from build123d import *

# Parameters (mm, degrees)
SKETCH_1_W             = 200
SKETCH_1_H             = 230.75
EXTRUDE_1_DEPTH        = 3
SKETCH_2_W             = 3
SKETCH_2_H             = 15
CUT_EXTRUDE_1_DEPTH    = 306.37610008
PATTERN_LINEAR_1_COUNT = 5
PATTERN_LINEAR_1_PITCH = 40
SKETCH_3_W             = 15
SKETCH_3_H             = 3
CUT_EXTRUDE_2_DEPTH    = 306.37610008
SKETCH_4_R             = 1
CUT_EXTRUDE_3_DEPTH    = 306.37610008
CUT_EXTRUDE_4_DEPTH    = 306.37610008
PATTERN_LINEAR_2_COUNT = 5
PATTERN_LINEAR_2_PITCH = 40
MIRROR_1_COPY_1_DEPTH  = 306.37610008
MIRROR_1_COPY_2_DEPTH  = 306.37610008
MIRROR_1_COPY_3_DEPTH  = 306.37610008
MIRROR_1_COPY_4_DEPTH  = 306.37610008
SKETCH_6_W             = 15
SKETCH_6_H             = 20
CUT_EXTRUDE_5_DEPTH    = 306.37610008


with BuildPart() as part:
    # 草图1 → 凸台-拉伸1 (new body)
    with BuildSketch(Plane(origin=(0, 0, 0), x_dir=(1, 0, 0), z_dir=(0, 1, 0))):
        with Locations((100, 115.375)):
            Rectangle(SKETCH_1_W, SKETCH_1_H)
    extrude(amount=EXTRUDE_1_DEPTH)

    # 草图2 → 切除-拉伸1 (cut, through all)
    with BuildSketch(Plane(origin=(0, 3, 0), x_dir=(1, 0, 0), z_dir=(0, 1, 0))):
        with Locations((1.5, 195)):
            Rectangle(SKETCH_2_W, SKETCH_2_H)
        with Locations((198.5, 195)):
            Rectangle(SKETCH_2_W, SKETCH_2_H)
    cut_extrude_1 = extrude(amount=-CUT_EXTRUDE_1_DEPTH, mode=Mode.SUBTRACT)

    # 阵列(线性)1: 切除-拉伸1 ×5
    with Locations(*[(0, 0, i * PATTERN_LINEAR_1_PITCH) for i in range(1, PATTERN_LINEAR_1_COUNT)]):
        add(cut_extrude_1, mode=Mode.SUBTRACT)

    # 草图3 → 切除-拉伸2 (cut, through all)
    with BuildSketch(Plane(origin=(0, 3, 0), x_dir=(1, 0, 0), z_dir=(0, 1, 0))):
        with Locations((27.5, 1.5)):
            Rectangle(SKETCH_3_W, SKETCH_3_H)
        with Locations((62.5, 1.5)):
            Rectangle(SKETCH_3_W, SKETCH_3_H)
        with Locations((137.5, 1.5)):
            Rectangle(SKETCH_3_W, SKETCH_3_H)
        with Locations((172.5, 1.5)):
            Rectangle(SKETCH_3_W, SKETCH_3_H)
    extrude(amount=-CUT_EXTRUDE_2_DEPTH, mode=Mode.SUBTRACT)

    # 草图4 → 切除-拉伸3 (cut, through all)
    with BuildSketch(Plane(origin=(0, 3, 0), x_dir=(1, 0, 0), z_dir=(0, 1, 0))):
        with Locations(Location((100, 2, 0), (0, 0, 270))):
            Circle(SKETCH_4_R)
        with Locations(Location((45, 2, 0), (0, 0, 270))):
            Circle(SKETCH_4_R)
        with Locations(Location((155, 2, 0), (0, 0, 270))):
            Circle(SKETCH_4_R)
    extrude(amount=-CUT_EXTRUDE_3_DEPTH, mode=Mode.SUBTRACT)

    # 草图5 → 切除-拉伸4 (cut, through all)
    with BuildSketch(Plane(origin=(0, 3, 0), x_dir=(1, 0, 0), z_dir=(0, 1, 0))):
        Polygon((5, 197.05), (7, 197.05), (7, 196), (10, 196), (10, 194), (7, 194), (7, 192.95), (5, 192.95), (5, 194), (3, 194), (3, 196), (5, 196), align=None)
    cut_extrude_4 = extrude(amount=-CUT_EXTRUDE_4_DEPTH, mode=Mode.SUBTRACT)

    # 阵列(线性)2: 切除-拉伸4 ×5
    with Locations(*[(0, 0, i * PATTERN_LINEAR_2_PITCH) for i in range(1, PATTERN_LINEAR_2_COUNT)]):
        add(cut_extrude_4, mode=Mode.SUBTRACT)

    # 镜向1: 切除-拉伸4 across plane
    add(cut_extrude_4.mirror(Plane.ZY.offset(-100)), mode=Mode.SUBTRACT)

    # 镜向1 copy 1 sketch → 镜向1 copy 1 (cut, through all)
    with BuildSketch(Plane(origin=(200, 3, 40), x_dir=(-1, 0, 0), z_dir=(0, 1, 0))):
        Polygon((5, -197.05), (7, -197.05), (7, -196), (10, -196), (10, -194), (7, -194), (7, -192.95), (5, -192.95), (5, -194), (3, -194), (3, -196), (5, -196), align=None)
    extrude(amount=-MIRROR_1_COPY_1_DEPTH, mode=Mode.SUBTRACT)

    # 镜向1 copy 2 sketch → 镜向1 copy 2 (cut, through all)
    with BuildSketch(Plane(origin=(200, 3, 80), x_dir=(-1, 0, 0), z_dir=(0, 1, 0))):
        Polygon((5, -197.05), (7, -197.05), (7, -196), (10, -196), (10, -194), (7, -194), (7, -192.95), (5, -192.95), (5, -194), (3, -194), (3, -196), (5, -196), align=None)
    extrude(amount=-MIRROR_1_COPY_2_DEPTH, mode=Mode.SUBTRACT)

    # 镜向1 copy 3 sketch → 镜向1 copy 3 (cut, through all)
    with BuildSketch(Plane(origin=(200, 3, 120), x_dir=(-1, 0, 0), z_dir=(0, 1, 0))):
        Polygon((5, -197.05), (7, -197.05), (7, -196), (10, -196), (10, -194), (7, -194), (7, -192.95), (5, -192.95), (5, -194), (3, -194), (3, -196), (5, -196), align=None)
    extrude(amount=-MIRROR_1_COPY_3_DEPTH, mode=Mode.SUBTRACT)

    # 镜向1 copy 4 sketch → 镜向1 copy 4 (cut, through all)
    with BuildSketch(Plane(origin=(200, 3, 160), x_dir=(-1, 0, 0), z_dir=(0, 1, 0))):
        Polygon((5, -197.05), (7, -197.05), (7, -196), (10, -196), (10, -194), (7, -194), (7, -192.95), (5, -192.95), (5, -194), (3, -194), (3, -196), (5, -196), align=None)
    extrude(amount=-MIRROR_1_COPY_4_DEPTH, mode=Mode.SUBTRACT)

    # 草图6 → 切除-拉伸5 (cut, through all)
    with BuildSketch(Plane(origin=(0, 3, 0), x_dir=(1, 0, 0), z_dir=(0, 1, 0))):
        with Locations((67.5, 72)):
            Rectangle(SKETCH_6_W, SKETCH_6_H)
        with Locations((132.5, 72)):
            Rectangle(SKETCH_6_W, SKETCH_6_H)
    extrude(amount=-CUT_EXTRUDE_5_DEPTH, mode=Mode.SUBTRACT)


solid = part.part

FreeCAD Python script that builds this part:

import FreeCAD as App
import Part
import Sketcher
Q = App.Units.Quantity

doc = App.newDocument("Part")
params = doc.addObject("Spreadsheet::Sheet", "Params")
for row, (alias, value) in enumerate([
    ("sketch1_width", "200 mm"),
    ("sketch1_height", "230.75 mm"),
    ("pad1_length", "3 mm"),
    ("sketch2_width", "3 mm"),
    ("sketch2_height", "15 mm"),
    ("linearpattern_pitch", "40 mm"),
    ("sketch3_width", "15 mm"),
    ("sketch3_height", "3 mm"),
    ("sketch4_diameter", "2 mm"),
    ("sketch5_width", "2 mm"),
    ("sketch5_width2", "3 mm"),
    ("sketch5_height", "1.05 mm"),
    ("linearpattern2_pitch", "40 mm"),
    ("sketch6_width", "2 mm"),
    ("sketch6_width2", "3 mm"),
    ("sketch6_height", "1.05 mm"),
    ("sketch7_width", "2 mm"),
    ("sketch7_width2", "3 mm"),
    ("sketch7_height", "1.05 mm"),
    ("sketch8_width", "2 mm"),
    ("sketch8_width2", "3 mm"),
    ("sketch8_height", "1.05 mm"),
    ("sketch9_width", "2 mm"),
    ("sketch9_width2", "3 mm"),
    ("sketch9_height", "1.05 mm"),
    ("sketch10_width", "15 mm"),
    ("sketch10_height", "20 mm"),
], start=1):
    params.set(f"A{row}", alias)
    params.set(f"B{row}", "=" + value)
    params.setAlias(f"B{row}", alias)

body = doc.addObject("PartDesign::Body", "Body")

sketch1 = body.newObject("Sketcher::SketchObject", "Sketch")
sketch1.AttachmentSupport = (doc.getObject("XZ_Plane"), [""])
sketch1.MapMode = "FlatFace"
sketch1.addGeometry([
    Part.LineSegment(App.Vector(0, -231, 0), App.Vector(0, 0, 0)),
    Part.LineSegment(App.Vector(0, 0, 0), App.Vector(200, 0, 0)),
    Part.LineSegment(App.Vector(200, 0, 0), App.Vector(200, -231, 0)),
    Part.LineSegment(App.Vector(200, -231, 0), App.Vector(0, -231, 0)),
], False)
sketch1.addConstraint([
    Sketcher.Constraint("Coincident", 0, 2, 1, 1),
    Sketcher.Constraint("Coincident", 1, 2, 2, 1),
    Sketcher.Constraint("Coincident", 2, 2, 3, 1),
    Sketcher.Constraint("Coincident", 3, 2, 0, 1),
    Sketcher.Constraint("Vertical", 0),
    Sketcher.Constraint("Horizontal", 1),
    Sketcher.Constraint("Vertical", 2),
    Sketcher.Constraint("Horizontal", 3),
    Sketcher.Constraint("Coincident", 0, 2, -1, 1),
    Sketcher.Constraint("DistanceX", 1, 1, 1, 2, Q("200 mm")),
    Sketcher.Constraint("DistanceY", 0, 1, 0, 2, Q("230.75 mm")),
])
sketch1.setExpression("Constraints[9]", "Params.sketch1_width")
sketch1.setExpression("Constraints[10]", "Params.sketch1_height")
pad1 = body.newObject("PartDesign::Pad", "Pad")
pad1.Profile = sketch1
pad1.setExpression("Length", "Params.pad1_length")
pad1.Reversed = True

sketch2 = body.newObject("Sketcher::SketchObject", "Sketch001")
sketch2.AttachmentSupport = (doc.getObject("XZ_Plane"), [""])
sketch2.MapMode = "FlatFace"
sketch2.AttachmentOffset = App.Placement(App.Vector(0, 0, -3), App.Rotation())
sketch2.addGeometry([
    Part.LineSegment(App.Vector(0, -202.5, 0), App.Vector(0, -187.5, 0)),
    Part.LineSegment(App.Vector(0, -187.5, 0), App.Vector(3, -187.5, 0)),
    Part.LineSegment(App.Vector(3, -187.5, 0), App.Vector(3, -202.5, 0)),
    Part.LineSegment(App.Vector(3, -202.5, 0), App.Vector(0, -202.5, 0)),
    Part.LineSegment(App.Vector(197, -202.5, 0), App.Vector(197, -187.5, 0)),
    Part.LineSegment(App.Vector(197, -187.5, 0), App.Vector(200, -187.5, 0)),
    Part.LineSegment(App.Vector(200, -187.5, 0), App.Vector(200, -202.5, 0)),
    Part.LineSegment(App.Vector(200, -202.5, 0), App.Vector(197, -202.5, 0)),
], False)
sketch2.addConstraint([
    Sketcher.Constraint("Coincident", 0, 2, 1, 1),
    Sketcher.Constraint("Coincident", 1, 2, 2, 1),
    Sketcher.Constraint("Coincident", 2, 2, 3, 1),
    Sketcher.Constraint("Coincident", 3, 2, 0, 1),
    Sketcher.Constraint("Coincident", 4, 2, 5, 1),
    Sketcher.Constraint("Coincident", 5, 2, 6, 1),
    Sketcher.Constraint("Coincident", 6, 2, 7, 1),
    Sketcher.Constraint("Coincident", 7, 2, 4, 1),
    Sketcher.Constraint("Vertical", 0),
    Sketcher.Constraint("Horizontal", 1),
    Sketcher.Constraint("Vertical", 2),
    Sketcher.Constraint("Horizontal", 3),
    Sketcher.Constraint("Vertical", 4),
    Sketcher.Constraint("Horizontal", 5),
    Sketcher.Constraint("Vertical", 6),
    Sketcher.Constraint("Horizontal", 7),
    Sketcher.Constraint("PointOnObject", 0, 2, -2),
    Sketcher.Constraint("Horizontal", 1, 2, 4, 2),
    Sketcher.Constraint("Horizontal", 3, 2, 6, 2),
    Sketcher.Constraint("Equal", 3, 5),
    Sketcher.Constraint("DistanceX", 1, 1, 1, 2, Q("3 mm")),
    Sketcher.Constraint("DistanceY", 0, 1, 0, 2, Q("15 mm")),
    Sketcher.Constraint("DistanceX", -1, 1, 4, 2, Q("197 mm")),
    Sketcher.Constraint("DistanceY", 0, 2, -1, 1, Q("187.5 mm")),
])
sketch2.setExpression("Constraints[20]", "Params.sketch2_width")
sketch2.setExpression("Constraints[21]", "Params.sketch2_height")
pocket1 = body.newObject("PartDesign::Pocket", "Pocket")
pocket1.Profile = sketch2
pocket1.Type = "ThroughAll"
pocket1.Reversed = True
doc.recompute()

linearpattern = body.newObject("PartDesign::LinearPattern", "LinearPattern")
linearpattern.Originals = [pocket1]
linearpattern.Direction = (doc.getObject("Z_Axis"), [""])
linearpattern.Mode = "offset"
linearpattern.setExpression("Offset", "Params.linearpattern_pitch")
linearpattern.Occurrences = 5
body.Tip = linearpattern

sketch3 = body.newObject("Sketcher::SketchObject", "Sketch002")
sketch3.AttachmentSupport = (doc.getObject("XZ_Plane"), [""])
sketch3.MapMode = "FlatFace"
sketch3.AttachmentOffset = App.Placement(App.Vector(0, 0, -3), App.Rotation())
sketch3.addGeometry([
    Part.LineSegment(App.Vector(20, -3, 0), App.Vector(20, 0, 0)),
    Part.LineSegment(App.Vector(20, 0, 0), App.Vector(35, 0, 0)),
    Part.LineSegment(App.Vector(35, 0, 0), App.Vector(35, -3, 0)),
    Part.LineSegment(App.Vector(35, -3, 0), App.Vector(20, -3, 0)),
    Part.LineSegment(App.Vector(55, -3, 0), App.Vector(55, 0, 0)),
    Part.LineSegment(App.Vector(55, 0, 0), App.Vector(70, 0, 0)),
    Part.LineSegment(App.Vector(70, 0, 0), App.Vector(70, -3, 0)),
    Part.LineSegment(App.Vector(70, -3, 0), App.Vector(55, -3, 0)),
    Part.LineSegment(App.Vector(130, -3, 0), App.Vector(130, 0, 0)),
    Part.LineSegment(App.Vector(130, 0, 0), App.Vector(145, 0, 0)),
    Part.LineSegment(App.Vector(145, 0, 0), App.Vector(145, -3, 0)),
    Part.LineSegment(App.Vector(145, -3, 0), App.Vector(130, -3, 0)),
    Part.LineSegment(App.Vector(165, -3, 0), App.Vector(165, 0, 0)),
    Part.LineSegment(App.Vector(165, 0, 0), App.Vector(180, 0, 0)),
    Part.LineSegment(App.Vector(180, 0, 0), App.Vector(180, -3, 0)),
    Part.LineSegment(App.Vector(180, -3, 0), App.Vector(165, -3, 0)),
], False)
sketch3.addConstraint([
    Sketcher.Constraint("Coincident", 0, 2, 1, 1),
    Sketcher.Constraint("Coincident", 1, 2, 2, 1),
    Sketcher.Constraint("Coincident", 2, 2, 3, 1),
    Sketcher.Constraint("Coincident", 3, 2, 0, 1),
    Sketcher.Constraint("Coincident", 4, 2, 5, 1),
    Sketcher.Constraint("Coincident", 5, 2, 6, 1),
    Sketcher.Constraint("Coincident", 6, 2, 7, 1),
    Sketcher.Constraint("Coincident", 7, 2, 4, 1),
    Sketcher.Constraint("Coincident", 8, 2, 9, 1),
    Sketcher.Constraint("Coincident", 9, 2, 10, 1),
    Sketcher.Constraint("Coincident", 10, 2, 11, 1),
    Sketcher.Constraint("Coincident", 11, 2, 8, 1),
    Sketcher.Constraint("Coincident", 12, 2, 13, 1),
    Sketcher.Constraint("Coincident", 13, 2, 14, 1),
    Sketcher.Constraint("Coincident", 14, 2, 15, 1),
    Sketcher.Constraint("Coincident", 15, 2, 12, 1),
    Sketcher.Constraint("Vertical", 0),
    Sketcher.Constraint("Horizontal", 1),
    Sketcher.Constraint("Vertical", 2),
    Sketcher.Constraint("Horizontal", 3),
    Sketcher.Constraint("Vertical", 4),
    Sketcher.Constraint("Horizontal", 5),
    Sketcher.Constraint("Vertical", 6),
    Sketcher.Constraint("Horizontal", 7),
    Sketcher.Constraint("Vertical", 8),
    Sketcher.Constraint("Horizontal", 9),
    Sketcher.Constraint("Vertical", 10),
    Sketcher.Constraint("Horizontal", 11),
    Sketcher.Constraint("Vertical", 12),
    Sketcher.Constraint("Horizontal", 13),
    Sketcher.Constraint("Vertical", 14),
    Sketcher.Constraint("Horizontal", 15),
    Sketcher.Constraint("PointOnObject", 0, 2, -1),
    Sketcher.Constraint("PointOnObject", 4, 2, -1),
    Sketcher.Constraint("PointOnObject", 8, 2, -1),
    Sketcher.Constraint("PointOnObject", 12, 2, -1),
    Sketcher.Constraint("Horizontal", 3, 2, 6, 2),
    Sketcher.Constraint("Horizontal", 7, 2, 10, 2),
    Sketcher.Constraint("Horizontal", 11, 2, 14, 2),
    Sketcher.Constraint("Equal", 3, 5),
    Sketcher.Constraint("Equal", 7, 9),
    Sketcher.Constraint("Equal", 11, 13),
    Sketcher.Constraint("DistanceX", 1, 1, 1, 2, Q("15 mm")),
    Sketcher.Constraint("DistanceY", 0, 1, 0, 2, Q("3 mm")),
    Sketcher.Constraint("DistanceX", -1, 1, 0, 2, Q("20 mm")),
    Sketcher.Constraint("DistanceX", -1, 1, 4, 2, Q("55 mm")),
    Sketcher.Constraint("DistanceX", -1, 1, 8, 2, Q("130 mm")),
    Sketcher.Constraint("DistanceX", -1, 1, 12, 2, Q("165 mm")),
])
sketch3.setExpression("Constraints[42]", "Params.sketch3_width")
sketch3.setExpression("Constraints[43]", "Params.sketch3_height")
pocket2 = body.newObject("PartDesign::Pocket", "Pocket001")
pocket2.Profile = sketch3
pocket2.Type = "ThroughAll"
pocket2.Reversed = True

sketch4 = body.newObject("Sketcher::SketchObject", "Sketch003")
sketch4.AttachmentSupport = (doc.getObject("XZ_Plane"), [""])
sketch4.MapMode = "FlatFace"
sketch4.AttachmentOffset = App.Placement(App.Vector(0, 0, -3), App.Rotation())
sketch4.addGeometry([
    Part.Circle(App.Vector(100, -2, 0), App.Vector(0, 0, 1), 1),
    Part.Circle(App.Vector(45, -2, 0), App.Vector(0, 0, 1), 1),
    Part.Circle(App.Vector(155, -2, 0), App.Vector(0, 0, 1), 1),
], False)
sketch4.addConstraint([
    Sketcher.Constraint("Equal", 0, 1),
    Sketcher.Constraint("Equal", 1, 2),
    Sketcher.Constraint("Horizontal", 0, 3, 1, 3),
    Sketcher.Constraint("Horizontal", 1, 3, 2, 3),
    Sketcher.Constraint("Diameter", 0, Q("2 mm")),
    Sketcher.Constraint("DistanceX", -1, 1, 0, 3, Q("100 mm")),
    Sketcher.Constraint("DistanceY", 0, 3, -1, 1, Q("2 mm")),
    Sketcher.Constraint("DistanceX", -1, 1, 1, 3, Q("45 mm")),
    Sketcher.Constraint("DistanceX", -1, 1, 2, 3, Q("155 mm")),
])
sketch4.setExpression("Constraints[4]", "Params.sketch4_diameter")
pocket3 = body.newObject("PartDesign::Pocket", "Pocket002")
pocket3.Profile = sketch4
pocket3.Type = "ThroughAll"
pocket3.Reversed = True

sketch5 = body.newObject("Sketcher::SketchObject", "Sketch004")
sketch5.AttachmentSupport = (doc.getObject("XZ_Plane"), [""])
sketch5.MapMode = "FlatFace"
sketch5.AttachmentOffset = App.Placement(App.Vector(0, 0, -3), App.Rotation())
sketch5.addGeometry([
    Part.LineSegment(App.Vector(7, -197.1, 0), App.Vector(5, -197.1, 0)),
    Part.LineSegment(App.Vector(5, -197.1, 0), App.Vector(5, -196, 0)),
    Part.LineSegment(App.Vector(5, -196, 0), App.Vector(3, -196, 0)),
    Part.LineSegment(App.Vector(3, -196, 0), App.Vector(3, -194, 0)),
    Part.LineSegment(App.Vector(3, -194, 0), App.Vector(5, -194, 0)),
    Part.LineSegment(App.Vector(5, -194, 0), App.Vector(5, -192.9, 0)),
    Part.LineSegment(App.Vector(5, -192.9, 0), App.Vector(7, -192.9, 0)),
    Part.LineSegment(App.Vector(7, -192.9, 0), App.Vector(7, -194, 0)),
    Part.LineSegment(App.Vector(7, -194, 0), App.Vector(10, -194, 0)),
    Part.LineSegment(App.Vector(10, -194, 0), App.Vector(10, -196, 0)),
    Part.LineSegment(App.Vector(10, -196, 0), App.Vector(7, -196, 0)),
    Part.LineSegment(App.Vector(7, -196, 0), App.Vector(7, -197.1, 0)),
], False)
sketch5.addConstraint([
    Sketcher.Constraint("Coincident", 0, 2, 1, 1),
    Sketcher.Constraint("Coincident", 1, 2, 2, 1),
    Sketcher.Constraint("Coincident", 2, 2, 3, 1),
    Sketcher.Constraint("Coincident", 3, 2, 4, 1),
    Sketcher.Constraint("Coincident", 4, 2, 5, 1),
    Sketcher.Constraint("Coincident", 5, 2, 6, 1),
    Sketcher.Constraint("Coincident", 6, 2, 7, 1),
    Sketcher.Constraint("Coincident", 7, 2, 8, 1),
    Sketcher.Constraint("Coincident", 8, 2, 9, 1),
    Sketcher.Constraint("Coincident", 9, 2, 10, 1),
    Sketcher.Constraint("Coincident", 10, 2, 11, 1),
    Sketcher.Constraint("Coincident", 11, 2, 0, 1),
    Sketcher.Constraint("Horizontal", 0),
    Sketcher.Constraint("Vertical", 1),
    Sketcher.Constraint("Horizontal", 2),
    Sketcher.Constraint("Vertical", 3),
    Sketcher.Constraint("Horizontal", 4),
    Sketcher.Constraint("Vertical", 5),
    Sketcher.Constraint("Horizontal", 6),
    Sketcher.Constraint("Vertical", 7),
    Sketcher.Constraint("Horizontal", 8),
    Sketcher.Constraint("Vertical", 9),
    Sketcher.Constraint("Horizontal", 10),
    Sketcher.Constraint("Vertical", 11),
    Sketcher.Constraint("Horizontal", 4, 2, 7, 2),
    Sketcher.Constraint("Horizontal", 2, 2, 9, 2),
    Sketcher.Constraint("Vertical", 1, 2, 4, 2),
    Sketcher.Constraint("Vertical", 7, 2, 10, 2),
    Sketcher.Constraint("Equal", 0, 2),
    Sketcher.Constraint("Equal", 6, 3),
    Sketcher.Constraint("Equal", 1, 5),
    Sketcher.Constraint("DistanceX", 0, 2, 0, 1, Q("2 mm")),
    Sketcher.Constraint("DistanceX", 8, 1, 8, 2, Q("3 mm")),
    Sketcher.Constraint("DistanceX", -1, 1, 0, 2, Q("5 mm")),
    Sketcher.Constraint("DistanceY", 1, 2, -1, 1, Q("196 mm")),
    Sketcher.Constraint("DistanceY", 1, 1, 1, 2, Q("1.05 mm")),
])
sketch5.setExpression("Constraints[31]", "Params.sketch5_width")
sketch5.setExpression("Constraints[32]", "Params.sketch5_width2")
sketch5.setExpression("Constraints[35]", "Params.sketch5_height")
pocket4 = body.newObject("PartDesign::Pocket", "Pocket003")
pocket4.Profile = sketch5
pocket4.Type = "ThroughAll"
pocket4.Reversed = True
doc.recompute()

linearpattern2 = body.newObject("PartDesign::LinearPattern", "LinearPattern001")
linearpattern2.Originals = [pocket4]
linearpattern2.Direction = (doc.getObject("Z_Axis"), [""])
linearpattern2.Mode = "offset"
linearpattern2.setExpression("Offset", "Params.linearpattern2_pitch")
linearpattern2.Occurrences = 5
body.Tip = linearpattern2
doc.recompute()

datumplane = body.newObject("PartDesign::Plane", "DatumPlane")
datumplane.AttachmentSupport = (doc.getObject("YZ_Plane"), [""])
datumplane.MapMode = "FlatFace"
datumplane.AttachmentOffset = App.Placement(App.Vector(0, 0, 100), App.Rotation())
mirrored = body.newObject("PartDesign::Mirrored", "Mirrored")
mirrored.Originals = [pocket4]
mirrored.MirrorPlane = (datumplane, [""])
body.Tip = mirrored

sketch6 = body.newObject("Sketcher::SketchObject", "Sketch005")
sketch6.AttachmentSupport = (doc.getObject("XZ_Plane"), [""])
sketch6.MapMode = "FlatFace"
sketch6.AttachmentOffset = App.Placement(App.Vector(0, 0, -3), App.Rotation())
sketch6.addGeometry([
    Part.LineSegment(App.Vector(195, -157.1, 0), App.Vector(193, -157.1, 0)),
    Part.LineSegment(App.Vector(193, -157.1, 0), App.Vector(193, -156, 0)),
    Part.LineSegment(App.Vector(193, -156, 0), App.Vector(190, -156, 0)),
    Part.LineSegment(App.Vector(190, -156, 0), App.Vector(190, -154, 0)),
    Part.LineSegment(App.Vector(190, -154, 0), App.Vector(193, -154, 0)),
    Part.LineSegment(App.Vector(193, -154, 0), App.Vector(193, -152.9, 0)),
    Part.LineSegment(App.Vector(193, -152.9, 0), App.Vector(195, -152.9, 0)),
    Part.LineSegment(App.Vector(195, -152.9, 0), App.Vector(195, -154, 0)),
    Part.LineSegment(App.Vector(195, -154, 0), App.Vector(197, -154, 0)),
    Part.LineSegment(App.Vector(197, -154, 0), App.Vector(197, -156, 0)),
    Part.LineSegment(App.Vector(197, -156, 0), App.Vector(195, -156, 0)),
    Part.LineSegment(App.Vector(195, -156, 0), App.Vector(195, -157.1, 0)),
], False)
sketch6.addConstraint([
    Sketcher.Constraint("Coincident", 0, 2, 1, 1),
    Sketcher.Constraint("Coincident", 1, 2, 2, 1),
    Sketcher.Constraint("Coincident", 2, 2, 3, 1),
    Sketcher.Constraint("Coincident", 3, 2, 4, 1),
    Sketcher.Constraint("Coincident", 4, 2, 5, 1),
    Sketcher.Constraint("Coincident", 5, 2, 6, 1),
    Sketcher.Constraint("Coincident", 6, 2, 7, 1),
    Sketcher.Constraint("Coincident", 7, 2, 8, 1),
    Sketcher.Constraint("Coincident", 8, 2, 9, 1),
    Sketcher.Constraint("Coincident", 9, 2, 10, 1),
    Sketcher.Constraint("Coincident", 10, 2, 11, 1),
    Sketcher.Constraint("Coincident", 11, 2, 0, 1),
    Sketcher.Constraint("Horizontal", 0),
    Sketcher.Constraint("Vertical", 1),
    Sketcher.Constraint("Horizontal", 2),
    Sketcher.Constraint("Vertical", 3),
    Sketcher.Constraint("Horizontal", 4),
    Sketcher.Constraint("Vertical", 5),
    Sketcher.Constraint("Horizontal", 6),
    Sketcher.Constraint("Vertical", 7),
    Sketcher.Constraint("Horizontal", 8),
    Sketcher.Constraint("Vertical", 9),
    Sketcher.Constraint("Horizontal", 10),
    Sketcher.Constraint("Vertical", 11),
    Sketcher.Constraint("Horizontal", 4, 2, 7, 2),
    Sketcher.Constraint("Horizontal", 2, 2, 9, 2),
    Sketcher.Constraint("Vertical", 1, 2, 4, 2),
    Sketcher.Constraint("Vertical", 7, 2, 10, 2),
    Sketcher.Constraint("Equal", 6, 8),
    Sketcher.Constraint("Equal", 10, 3),
    Sketcher.Constraint("Equal", 1, 5),
    Sketcher.Constraint("DistanceX", 0, 2, 0, 1, Q("2 mm")),
    Sketcher.Constraint("DistanceX", 2, 2, 2, 1, Q("3 mm")),
    Sketcher.Constraint("DistanceX", -1, 1, 0, 2, Q("193 mm")),
    Sketcher.Constraint("DistanceY", 1, 2, -1, 1, Q("156 mm")),
    Sketcher.Constraint("DistanceY", 1, 1, 1, 2, Q("1.05 mm")),
])
sketch6.setExpression("Constraints[31]", "Params.sketch6_width")
sketch6.setExpression("Constraints[32]", "Params.sketch6_width2")
sketch6.setExpression("Constraints[35]", "Params.sketch6_height")
pocket5 = body.newObject("PartDesign::Pocket", "Pocket004")
pocket5.Profile = sketch6
pocket5.Type = "ThroughAll"
pocket5.Reversed = True

sketch7 = body.newObject("Sketcher::SketchObject", "Sketch006")
sketch7.AttachmentSupport = (doc.getObject("XZ_Plane"), [""])
sketch7.MapMode = "FlatFace"
sketch7.AttachmentOffset = App.Placement(App.Vector(0, 0, -3), App.Rotation())
sketch7.addGeometry([
    Part.LineSegment(App.Vector(195, -117, 0), App.Vector(193, -117, 0)),
    Part.LineSegment(App.Vector(193, -117, 0), App.Vector(193, -116, 0)),
    Part.LineSegment(App.Vector(193, -116, 0), App.Vector(190, -116, 0)),
    Part.LineSegment(App.Vector(190, -116, 0), App.Vector(190, -114, 0)),
    Part.LineSegment(App.Vector(190, -114, 0), App.Vector(193, -114, 0)),
    Part.LineSegment(App.Vector(193, -114, 0), App.Vector(193, -113, 0)),
    Part.LineSegment(App.Vector(193, -113, 0), App.Vector(195, -113, 0)),
    Part.LineSegment(App.Vector(195, -113, 0), App.Vector(195, -114, 0)),
    Part.LineSegment(App.Vector(195, -114, 0), App.Vector(197, -114, 0)),
    Part.LineSegment(App.Vector(197, -114, 0), App.Vector(197, -116, 0)),
    Part.LineSegment(App.Vector(197, -116, 0), App.Vector(195, -116, 0)),
    Part.LineSegment(App.Vector(195, -116, 0), App.Vector(195, -117, 0)),
], False)
sketch7.addConstraint([
    Sketcher.Constraint("Coincident", 0, 2, 1, 1),
    Sketcher.Constraint("Coincident", 1, 2, 2, 1),
    Sketcher.Constraint("Coincident", 2, 2, 3, 1),
    Sketcher.Constraint("Coincident", 3, 2, 4, 1),
    Sketcher.Constraint("Coincident", 4, 2, 5, 1),
    Sketcher.Constraint("Coincident", 5, 2, 6, 1),
    Sketcher.Constraint("Coincident", 6, 2, 7, 1),
    Sketcher.Constraint("Coincident", 7, 2, 8, 1),
    Sketcher.Constraint("Coincident", 8, 2, 9, 1),
    Sketcher.Constraint("Coincident", 9, 2, 10, 1),
    Sketcher.Constraint("Coincident", 10, 2, 11, 1),
    Sketcher.Constraint("Coincident", 11, 2, 0, 1),
    Sketcher.Constraint("Horizontal", 0),
    Sketcher.Constraint("Vertical", 1),
    Sketcher.Constraint("Horizontal", 2),
    Sketcher.Constraint("Vertical", 3),
    Sketcher.Constraint("Horizontal", 4),
    Sketcher.Constraint("Vertical", 5),
    Sketcher.Constraint("Horizontal", 6),
    Sketcher.Constraint("Vertical", 7),
    Sketcher.Constraint("Horizontal", 8),
    Sketcher.Constraint("Vertical", 9),
    Sketcher.Constraint("Horizontal", 10),
    Sketcher.Constraint("Vertical", 11),
    Sketcher.Constraint("Horizontal", 4, 2, 7, 2),
    Sketcher.Constraint("Horizontal", 2, 2, 9, 2),
    Sketcher.Constraint("Vertical", 1, 2, 4, 2),
    Sketcher.Constraint("Vertical", 7, 2, 10, 2),
    Sketcher.Constraint("Equal", 6, 8),
    Sketcher.Constraint("Equal", 10, 3),
    Sketcher.Constraint("Equal", 1, 5),
    Sketcher.Constraint("DistanceX", 0, 2, 0, 1, Q("2 mm")),
    Sketcher.Constraint("DistanceX", 2, 2, 2, 1, Q("3 mm")),
    Sketcher.Constraint("DistanceX", -1, 1, 0, 2, Q("193 mm")),
    Sketcher.Constraint("DistanceY", 1, 2, -1, 1, Q("116 mm")),
    Sketcher.Constraint("DistanceY", 1, 1, 1, 2, Q("1.05 mm")),
])
sketch7.setExpression("Constraints[31]", "Params.sketch7_width")
sketch7.setExpression("Constraints[32]", "Params.sketch7_width2")
sketch7.setExpression("Constraints[35]", "Params.sketch7_height")
pocket6 = body.newObject("PartDesign::Pocket", "Pocket005")
pocket6.Profile = sketch7
pocket6.Type = "ThroughAll"
pocket6.Reversed = True

sketch8 = body.newObject("Sketcher::SketchObject", "Sketch007")
sketch8.AttachmentSupport = (doc.getObject("XZ_Plane"), [""])
sketch8.MapMode = "FlatFace"
sketch8.AttachmentOffset = App.Placement(App.Vector(0, 0, -3), App.Rotation())
sketch8.addGeometry([
    Part.LineSegment(App.Vector(195, -77, 0), App.Vector(193, -77, 0)),
    Part.LineSegment(App.Vector(193, -77, 0), App.Vector(193, -76, 0)),
    Part.LineSegment(App.Vector(193, -76, 0), App.Vector(190, -76, 0)),
    Part.LineSegment(App.Vector(190, -76, 0), App.Vector(190, -74, 0)),
    Part.LineSegment(App.Vector(190, -74, 0), App.Vector(193, -74, 0)),
    Part.LineSegment(App.Vector(193, -74, 0), App.Vector(193, -73, 0)),
    Part.LineSegment(App.Vector(193, -73, 0), App.Vector(195, -73, 0)),
    Part.LineSegment(App.Vector(195, -73, 0), App.Vector(195, -74, 0)),
    Part.LineSegment(App.Vector(195, -74, 0), App.Vector(197, -74, 0)),
    Part.LineSegment(App.Vector(197, -74, 0), App.Vector(197, -76, 0)),
    Part.LineSegment(App.Vector(197, -76, 0), App.Vector(195, -76, 0)),
    Part.LineSegment(App.Vector(195, -76, 0), App.Vector(195, -77, 0)),
], False)
sketch8.addConstraint([
    Sketcher.Constraint("Coincident", 0, 2, 1, 1),
    Sketcher.Constraint("Coincident", 1, 2, 2, 1),
    Sketcher.Constraint("Coincident", 2, 2, 3, 1),
    Sketcher.Constraint("Coincident", 3, 2, 4, 1),
    Sketcher.Constraint("Coincident", 4, 2, 5, 1),
    Sketcher.Constraint("Coincident", 5, 2, 6, 1),
    Sketcher.Constraint("Coincident", 6, 2, 7, 1),
    Sketcher.Constraint("Coincident", 7, 2, 8, 1),
    Sketcher.Constraint("Coincident", 8, 2, 9, 1),
    Sketcher.Constraint("Coincident", 9, 2, 10, 1),
    Sketcher.Constraint("Coincident", 10, 2, 11, 1),
    Sketcher.Constraint("Coincident", 11, 2, 0, 1),
    Sketcher.Constraint("Horizontal", 0),
    Sketcher.Constraint("Vertical", 1),
    Sketcher.Constraint("Horizontal", 2),
    Sketcher.Constraint("Vertical", 3),
    Sketcher.Constraint("Horizontal", 4),
    Sketcher.Constraint("Vertical", 5),
    Sketcher.Constraint("Horizontal", 6),
    Sketcher.Constraint("Vertical", 7),
    Sketcher.Constraint("Horizontal", 8),
    Sketcher.Constraint("Vertical", 9),
    Sketcher.Constraint("Horizontal", 10),
    Sketcher.Constraint("Vertical", 11),
    Sketcher.Constraint("Horizontal", 4, 2, 7, 2),
    Sketcher.Constraint("Horizontal", 2, 2, 9, 2),
    Sketcher.Constraint("Vertical", 1, 2, 4, 2),
    Sketcher.Constraint("Vertical", 7, 2, 10, 2),
    Sketcher.Constraint("Equal", 6, 8),
    Sketcher.Constraint("Equal", 10, 3),
    Sketcher.Constraint("Equal", 1, 5),
    Sketcher.Constraint("DistanceX", 0, 2, 0, 1, Q("2 mm")),
    Sketcher.Constraint("DistanceX", 2, 2, 2, 1, Q("3 mm")),
    Sketcher.Constraint("DistanceX", -1, 1, 0, 2, Q("193 mm")),
    Sketcher.Constraint("DistanceY", 1, 2, -1, 1, Q("76 mm")),
    Sketcher.Constraint("DistanceY", 1, 1, 1, 2, Q("1.05 mm")),
])
sketch8.setExpression("Constraints[31]", "Params.sketch8_width")
sketch8.setExpression("Constraints[32]", "Params.sketch8_width2")
sketch8.setExpression("Constraints[35]", "Params.sketch8_height")
pocket7 = body.newObject("PartDesign::Pocket", "Pocket006")
pocket7.Profile = sketch8
pocket7.Type = "ThroughAll"
pocket7.Reversed = True

sketch9 = body.newObject("Sketcher::SketchObject", "Sketch008")
sketch9.AttachmentSupport = (doc.getObject("XZ_Plane"), [""])
sketch9.MapMode = "FlatFace"
sketch9.AttachmentOffset = App.Placement(App.Vector(0, 0, -3), App.Rotation())
sketch9.addGeometry([
    Part.LineSegment(App.Vector(195, -37, 0), App.Vector(193, -37, 0)),
    Part.LineSegment(App.Vector(193, -37, 0), App.Vector(193, -36, 0)),
    Part.LineSegment(App.Vector(193, -36, 0), App.Vector(190, -36, 0)),
    Part.LineSegment(App.Vector(190, -36, 0), App.Vector(190, -34, 0)),
    Part.LineSegment(App.Vector(190, -34, 0), App.Vector(193, -34, 0)),
    Part.LineSegment(App.Vector(193, -34, 0), App.Vector(193, -33, 0)),
    Part.LineSegment(App.Vector(193, -33, 0), App.Vector(195, -33, 0)),
    Part.LineSegment(App.Vector(195, -33, 0), App.Vector(195, -34, 0)),
    Part.LineSegment(App.Vector(195, -34, 0), App.Vector(197, -34, 0)),
    Part.LineSegment(App.Vector(197, -34, 0), App.Vector(197, -36, 0)),
    Part.LineSegment(App.Vector(197, -36, 0), App.Vector(195, -36, 0)),
    Part.LineSegment(App.Vector(195, -36, 0), App.Vector(195, -37, 0)),
], False)
sketch9.addConstraint([
    Sketcher.Constraint("Coincident", 0, 2, 1, 1),
    Sketcher.Constraint("Coincident", 1, 2, 2, 1),
    Sketcher.Constraint("Coincident", 2, 2, 3, 1),
    Sketcher.Constraint("Coincident", 3, 2, 4, 1),
    Sketcher.Constraint("Coincident", 4, 2, 5, 1),
    Sketcher.Constraint("Coincident", 5, 2, 6, 1),
    Sketcher.Constraint("Coincident", 6, 2, 7, 1),
    Sketcher.Constraint("Coincident", 7, 2, 8, 1),
    Sketcher.Constraint("Coincident", 8, 2, 9, 1),
    Sketcher.Constraint("Coincident", 9, 2, 10, 1),
    Sketcher.Constraint("Coincident", 10, 2, 11, 1),
    Sketcher.Constraint("Coincident", 11, 2, 0, 1),
    Sketcher.Constraint("Horizontal", 0),
    Sketcher.Constraint("Vertical", 1),
    Sketcher.Constraint("Horizontal", 2),
    Sketcher.Constraint("Vertical", 3),
    Sketcher.Constraint("Horizontal", 4),
    Sketcher.Constraint("Vertical", 5),
    Sketcher.Constraint("Horizontal", 6),
    Sketcher.Constraint("Vertical", 7),
    Sketcher.Constraint("Horizontal", 8),
    Sketcher.Constraint("Vertical", 9),
    Sketcher.Constraint("Horizontal", 10),
    Sketcher.Constraint("Vertical", 11),
    Sketcher.Constraint("Horizontal", 4, 2, 7, 2),
    Sketcher.Constraint("Horizontal", 2, 2, 9, 2),
    Sketcher.Constraint("Vertical", 1, 2, 4, 2),
    Sketcher.Constraint("Vertical", 7, 2, 10, 2),
    Sketcher.Constraint("Equal", 6, 8),
    Sketcher.Constraint("Equal", 10, 3),
    Sketcher.Constraint("Equal", 1, 5),
    Sketcher.Constraint("DistanceX", 0, 2, 0, 1, Q("2 mm")),
    Sketcher.Constraint("DistanceX", 2, 2, 2, 1, Q("3 mm")),
    Sketcher.Constraint("DistanceX", -1, 1, 0, 2, Q("193 mm")),
    Sketcher.Constraint("DistanceY", 1, 2, -1, 1, Q("36 mm")),
    Sketcher.Constraint("DistanceY", 1, 1, 1, 2, Q("1.05 mm")),
])
sketch9.setExpression("Constraints[31]", "Params.sketch9_width")
sketch9.setExpression("Constraints[32]", "Params.sketch9_width2")
sketch9.setExpression("Constraints[35]", "Params.sketch9_height")
pocket8 = body.newObject("PartDesign::Pocket", "Pocket007")
pocket8.Profile = sketch9
pocket8.Type = "ThroughAll"
pocket8.Reversed = True

sketch10 = body.newObject("Sketcher::SketchObject", "Sketch009")
sketch10.AttachmentSupport = (doc.getObject("XZ_Plane"), [""])
sketch10.MapMode = "FlatFace"
sketch10.AttachmentOffset = App.Placement(App.Vector(0, 0, -3), App.Rotation())
sketch10.addGeometry([
    Part.LineSegment(App.Vector(60, -82, 0), App.Vector(60, -62, 0)),
    Part.LineSegment(App.Vector(60, -62, 0), App.Vector(75, -62, 0)),
    Part.LineSegment(App.Vector(75, -62, 0), App.Vector(75, -82, 0)),
    Part.LineSegment(App.Vector(75, -82, 0), App.Vector(60, -82, 0)),
    Part.LineSegment(App.Vector(125, -82, 0), App.Vector(125, -62, 0)),
    Part.LineSegment(App.Vector(125, -62, 0), App.Vector(140, -62, 0)),
    Part.LineSegment(App.Vector(140, -62, 0), App.Vector(140, -82, 0)),
    Part.LineSegment(App.Vector(140, -82, 0), App.Vector(125, -82, 0)),
], False)
sketch10.addConstraint([
    Sketcher.Constraint("Coincident", 0, 2, 1, 1),
    Sketcher.Constraint("Coincident", 1, 2, 2, 1),
    Sketcher.Constraint("Coincident", 2, 2, 3, 1),
    Sketcher.Constraint("Coincident", 3, 2, 0, 1),
    Sketcher.Constraint("Coincident", 4, 2, 5, 1),
    Sketcher.Constraint("Coincident", 5, 2, 6, 1),
    Sketcher.Constraint("Coincident", 6, 2, 7, 1),
    Sketcher.Constraint("Coincident", 7, 2, 4, 1),
    Sketcher.Constraint("Vertical", 0),
    Sketcher.Constraint("Horizontal", 1),
    Sketcher.Constraint("Vertical", 2),
    Sketcher.Constraint("Horizontal", 3),
    Sketcher.Constraint("Vertical", 4),
    Sketcher.Constraint("Horizontal", 5),
    Sketcher.Constraint("Vertical", 6),
    Sketcher.Constraint("Horizontal", 7),
    Sketcher.Constraint("Horizontal", 1, 2, 4, 2),
    Sketcher.Constraint("Horizontal", 3, 2, 6, 2),
    Sketcher.Constraint("Equal", 3, 5),
    Sketcher.Constraint("DistanceX", 1, 1, 1, 2, Q("15 mm")),
    Sketcher.Constraint("DistanceY", 0, 1, 0, 2, Q("20 mm")),
    Sketcher.Constraint("DistanceX", -1, 1, 0, 2, Q("60 mm")),
    Sketcher.Constraint("DistanceY", 0, 2, -1, 1, Q("62 mm")),
    Sketcher.Constraint("DistanceX", -1, 1, 4, 2, Q("125 mm")),
])
sketch10.setExpression("Constraints[19]", "Params.sketch10_width")
sketch10.setExpression("Constraints[20]", "Params.sketch10_height")
pocket9 = body.newObject("PartDesign::Pocket", "Pocket008")
pocket9.Profile = sketch10
pocket9.Type = "ThroughAll"
pocket9.Reversed = True

doc.recompute()
